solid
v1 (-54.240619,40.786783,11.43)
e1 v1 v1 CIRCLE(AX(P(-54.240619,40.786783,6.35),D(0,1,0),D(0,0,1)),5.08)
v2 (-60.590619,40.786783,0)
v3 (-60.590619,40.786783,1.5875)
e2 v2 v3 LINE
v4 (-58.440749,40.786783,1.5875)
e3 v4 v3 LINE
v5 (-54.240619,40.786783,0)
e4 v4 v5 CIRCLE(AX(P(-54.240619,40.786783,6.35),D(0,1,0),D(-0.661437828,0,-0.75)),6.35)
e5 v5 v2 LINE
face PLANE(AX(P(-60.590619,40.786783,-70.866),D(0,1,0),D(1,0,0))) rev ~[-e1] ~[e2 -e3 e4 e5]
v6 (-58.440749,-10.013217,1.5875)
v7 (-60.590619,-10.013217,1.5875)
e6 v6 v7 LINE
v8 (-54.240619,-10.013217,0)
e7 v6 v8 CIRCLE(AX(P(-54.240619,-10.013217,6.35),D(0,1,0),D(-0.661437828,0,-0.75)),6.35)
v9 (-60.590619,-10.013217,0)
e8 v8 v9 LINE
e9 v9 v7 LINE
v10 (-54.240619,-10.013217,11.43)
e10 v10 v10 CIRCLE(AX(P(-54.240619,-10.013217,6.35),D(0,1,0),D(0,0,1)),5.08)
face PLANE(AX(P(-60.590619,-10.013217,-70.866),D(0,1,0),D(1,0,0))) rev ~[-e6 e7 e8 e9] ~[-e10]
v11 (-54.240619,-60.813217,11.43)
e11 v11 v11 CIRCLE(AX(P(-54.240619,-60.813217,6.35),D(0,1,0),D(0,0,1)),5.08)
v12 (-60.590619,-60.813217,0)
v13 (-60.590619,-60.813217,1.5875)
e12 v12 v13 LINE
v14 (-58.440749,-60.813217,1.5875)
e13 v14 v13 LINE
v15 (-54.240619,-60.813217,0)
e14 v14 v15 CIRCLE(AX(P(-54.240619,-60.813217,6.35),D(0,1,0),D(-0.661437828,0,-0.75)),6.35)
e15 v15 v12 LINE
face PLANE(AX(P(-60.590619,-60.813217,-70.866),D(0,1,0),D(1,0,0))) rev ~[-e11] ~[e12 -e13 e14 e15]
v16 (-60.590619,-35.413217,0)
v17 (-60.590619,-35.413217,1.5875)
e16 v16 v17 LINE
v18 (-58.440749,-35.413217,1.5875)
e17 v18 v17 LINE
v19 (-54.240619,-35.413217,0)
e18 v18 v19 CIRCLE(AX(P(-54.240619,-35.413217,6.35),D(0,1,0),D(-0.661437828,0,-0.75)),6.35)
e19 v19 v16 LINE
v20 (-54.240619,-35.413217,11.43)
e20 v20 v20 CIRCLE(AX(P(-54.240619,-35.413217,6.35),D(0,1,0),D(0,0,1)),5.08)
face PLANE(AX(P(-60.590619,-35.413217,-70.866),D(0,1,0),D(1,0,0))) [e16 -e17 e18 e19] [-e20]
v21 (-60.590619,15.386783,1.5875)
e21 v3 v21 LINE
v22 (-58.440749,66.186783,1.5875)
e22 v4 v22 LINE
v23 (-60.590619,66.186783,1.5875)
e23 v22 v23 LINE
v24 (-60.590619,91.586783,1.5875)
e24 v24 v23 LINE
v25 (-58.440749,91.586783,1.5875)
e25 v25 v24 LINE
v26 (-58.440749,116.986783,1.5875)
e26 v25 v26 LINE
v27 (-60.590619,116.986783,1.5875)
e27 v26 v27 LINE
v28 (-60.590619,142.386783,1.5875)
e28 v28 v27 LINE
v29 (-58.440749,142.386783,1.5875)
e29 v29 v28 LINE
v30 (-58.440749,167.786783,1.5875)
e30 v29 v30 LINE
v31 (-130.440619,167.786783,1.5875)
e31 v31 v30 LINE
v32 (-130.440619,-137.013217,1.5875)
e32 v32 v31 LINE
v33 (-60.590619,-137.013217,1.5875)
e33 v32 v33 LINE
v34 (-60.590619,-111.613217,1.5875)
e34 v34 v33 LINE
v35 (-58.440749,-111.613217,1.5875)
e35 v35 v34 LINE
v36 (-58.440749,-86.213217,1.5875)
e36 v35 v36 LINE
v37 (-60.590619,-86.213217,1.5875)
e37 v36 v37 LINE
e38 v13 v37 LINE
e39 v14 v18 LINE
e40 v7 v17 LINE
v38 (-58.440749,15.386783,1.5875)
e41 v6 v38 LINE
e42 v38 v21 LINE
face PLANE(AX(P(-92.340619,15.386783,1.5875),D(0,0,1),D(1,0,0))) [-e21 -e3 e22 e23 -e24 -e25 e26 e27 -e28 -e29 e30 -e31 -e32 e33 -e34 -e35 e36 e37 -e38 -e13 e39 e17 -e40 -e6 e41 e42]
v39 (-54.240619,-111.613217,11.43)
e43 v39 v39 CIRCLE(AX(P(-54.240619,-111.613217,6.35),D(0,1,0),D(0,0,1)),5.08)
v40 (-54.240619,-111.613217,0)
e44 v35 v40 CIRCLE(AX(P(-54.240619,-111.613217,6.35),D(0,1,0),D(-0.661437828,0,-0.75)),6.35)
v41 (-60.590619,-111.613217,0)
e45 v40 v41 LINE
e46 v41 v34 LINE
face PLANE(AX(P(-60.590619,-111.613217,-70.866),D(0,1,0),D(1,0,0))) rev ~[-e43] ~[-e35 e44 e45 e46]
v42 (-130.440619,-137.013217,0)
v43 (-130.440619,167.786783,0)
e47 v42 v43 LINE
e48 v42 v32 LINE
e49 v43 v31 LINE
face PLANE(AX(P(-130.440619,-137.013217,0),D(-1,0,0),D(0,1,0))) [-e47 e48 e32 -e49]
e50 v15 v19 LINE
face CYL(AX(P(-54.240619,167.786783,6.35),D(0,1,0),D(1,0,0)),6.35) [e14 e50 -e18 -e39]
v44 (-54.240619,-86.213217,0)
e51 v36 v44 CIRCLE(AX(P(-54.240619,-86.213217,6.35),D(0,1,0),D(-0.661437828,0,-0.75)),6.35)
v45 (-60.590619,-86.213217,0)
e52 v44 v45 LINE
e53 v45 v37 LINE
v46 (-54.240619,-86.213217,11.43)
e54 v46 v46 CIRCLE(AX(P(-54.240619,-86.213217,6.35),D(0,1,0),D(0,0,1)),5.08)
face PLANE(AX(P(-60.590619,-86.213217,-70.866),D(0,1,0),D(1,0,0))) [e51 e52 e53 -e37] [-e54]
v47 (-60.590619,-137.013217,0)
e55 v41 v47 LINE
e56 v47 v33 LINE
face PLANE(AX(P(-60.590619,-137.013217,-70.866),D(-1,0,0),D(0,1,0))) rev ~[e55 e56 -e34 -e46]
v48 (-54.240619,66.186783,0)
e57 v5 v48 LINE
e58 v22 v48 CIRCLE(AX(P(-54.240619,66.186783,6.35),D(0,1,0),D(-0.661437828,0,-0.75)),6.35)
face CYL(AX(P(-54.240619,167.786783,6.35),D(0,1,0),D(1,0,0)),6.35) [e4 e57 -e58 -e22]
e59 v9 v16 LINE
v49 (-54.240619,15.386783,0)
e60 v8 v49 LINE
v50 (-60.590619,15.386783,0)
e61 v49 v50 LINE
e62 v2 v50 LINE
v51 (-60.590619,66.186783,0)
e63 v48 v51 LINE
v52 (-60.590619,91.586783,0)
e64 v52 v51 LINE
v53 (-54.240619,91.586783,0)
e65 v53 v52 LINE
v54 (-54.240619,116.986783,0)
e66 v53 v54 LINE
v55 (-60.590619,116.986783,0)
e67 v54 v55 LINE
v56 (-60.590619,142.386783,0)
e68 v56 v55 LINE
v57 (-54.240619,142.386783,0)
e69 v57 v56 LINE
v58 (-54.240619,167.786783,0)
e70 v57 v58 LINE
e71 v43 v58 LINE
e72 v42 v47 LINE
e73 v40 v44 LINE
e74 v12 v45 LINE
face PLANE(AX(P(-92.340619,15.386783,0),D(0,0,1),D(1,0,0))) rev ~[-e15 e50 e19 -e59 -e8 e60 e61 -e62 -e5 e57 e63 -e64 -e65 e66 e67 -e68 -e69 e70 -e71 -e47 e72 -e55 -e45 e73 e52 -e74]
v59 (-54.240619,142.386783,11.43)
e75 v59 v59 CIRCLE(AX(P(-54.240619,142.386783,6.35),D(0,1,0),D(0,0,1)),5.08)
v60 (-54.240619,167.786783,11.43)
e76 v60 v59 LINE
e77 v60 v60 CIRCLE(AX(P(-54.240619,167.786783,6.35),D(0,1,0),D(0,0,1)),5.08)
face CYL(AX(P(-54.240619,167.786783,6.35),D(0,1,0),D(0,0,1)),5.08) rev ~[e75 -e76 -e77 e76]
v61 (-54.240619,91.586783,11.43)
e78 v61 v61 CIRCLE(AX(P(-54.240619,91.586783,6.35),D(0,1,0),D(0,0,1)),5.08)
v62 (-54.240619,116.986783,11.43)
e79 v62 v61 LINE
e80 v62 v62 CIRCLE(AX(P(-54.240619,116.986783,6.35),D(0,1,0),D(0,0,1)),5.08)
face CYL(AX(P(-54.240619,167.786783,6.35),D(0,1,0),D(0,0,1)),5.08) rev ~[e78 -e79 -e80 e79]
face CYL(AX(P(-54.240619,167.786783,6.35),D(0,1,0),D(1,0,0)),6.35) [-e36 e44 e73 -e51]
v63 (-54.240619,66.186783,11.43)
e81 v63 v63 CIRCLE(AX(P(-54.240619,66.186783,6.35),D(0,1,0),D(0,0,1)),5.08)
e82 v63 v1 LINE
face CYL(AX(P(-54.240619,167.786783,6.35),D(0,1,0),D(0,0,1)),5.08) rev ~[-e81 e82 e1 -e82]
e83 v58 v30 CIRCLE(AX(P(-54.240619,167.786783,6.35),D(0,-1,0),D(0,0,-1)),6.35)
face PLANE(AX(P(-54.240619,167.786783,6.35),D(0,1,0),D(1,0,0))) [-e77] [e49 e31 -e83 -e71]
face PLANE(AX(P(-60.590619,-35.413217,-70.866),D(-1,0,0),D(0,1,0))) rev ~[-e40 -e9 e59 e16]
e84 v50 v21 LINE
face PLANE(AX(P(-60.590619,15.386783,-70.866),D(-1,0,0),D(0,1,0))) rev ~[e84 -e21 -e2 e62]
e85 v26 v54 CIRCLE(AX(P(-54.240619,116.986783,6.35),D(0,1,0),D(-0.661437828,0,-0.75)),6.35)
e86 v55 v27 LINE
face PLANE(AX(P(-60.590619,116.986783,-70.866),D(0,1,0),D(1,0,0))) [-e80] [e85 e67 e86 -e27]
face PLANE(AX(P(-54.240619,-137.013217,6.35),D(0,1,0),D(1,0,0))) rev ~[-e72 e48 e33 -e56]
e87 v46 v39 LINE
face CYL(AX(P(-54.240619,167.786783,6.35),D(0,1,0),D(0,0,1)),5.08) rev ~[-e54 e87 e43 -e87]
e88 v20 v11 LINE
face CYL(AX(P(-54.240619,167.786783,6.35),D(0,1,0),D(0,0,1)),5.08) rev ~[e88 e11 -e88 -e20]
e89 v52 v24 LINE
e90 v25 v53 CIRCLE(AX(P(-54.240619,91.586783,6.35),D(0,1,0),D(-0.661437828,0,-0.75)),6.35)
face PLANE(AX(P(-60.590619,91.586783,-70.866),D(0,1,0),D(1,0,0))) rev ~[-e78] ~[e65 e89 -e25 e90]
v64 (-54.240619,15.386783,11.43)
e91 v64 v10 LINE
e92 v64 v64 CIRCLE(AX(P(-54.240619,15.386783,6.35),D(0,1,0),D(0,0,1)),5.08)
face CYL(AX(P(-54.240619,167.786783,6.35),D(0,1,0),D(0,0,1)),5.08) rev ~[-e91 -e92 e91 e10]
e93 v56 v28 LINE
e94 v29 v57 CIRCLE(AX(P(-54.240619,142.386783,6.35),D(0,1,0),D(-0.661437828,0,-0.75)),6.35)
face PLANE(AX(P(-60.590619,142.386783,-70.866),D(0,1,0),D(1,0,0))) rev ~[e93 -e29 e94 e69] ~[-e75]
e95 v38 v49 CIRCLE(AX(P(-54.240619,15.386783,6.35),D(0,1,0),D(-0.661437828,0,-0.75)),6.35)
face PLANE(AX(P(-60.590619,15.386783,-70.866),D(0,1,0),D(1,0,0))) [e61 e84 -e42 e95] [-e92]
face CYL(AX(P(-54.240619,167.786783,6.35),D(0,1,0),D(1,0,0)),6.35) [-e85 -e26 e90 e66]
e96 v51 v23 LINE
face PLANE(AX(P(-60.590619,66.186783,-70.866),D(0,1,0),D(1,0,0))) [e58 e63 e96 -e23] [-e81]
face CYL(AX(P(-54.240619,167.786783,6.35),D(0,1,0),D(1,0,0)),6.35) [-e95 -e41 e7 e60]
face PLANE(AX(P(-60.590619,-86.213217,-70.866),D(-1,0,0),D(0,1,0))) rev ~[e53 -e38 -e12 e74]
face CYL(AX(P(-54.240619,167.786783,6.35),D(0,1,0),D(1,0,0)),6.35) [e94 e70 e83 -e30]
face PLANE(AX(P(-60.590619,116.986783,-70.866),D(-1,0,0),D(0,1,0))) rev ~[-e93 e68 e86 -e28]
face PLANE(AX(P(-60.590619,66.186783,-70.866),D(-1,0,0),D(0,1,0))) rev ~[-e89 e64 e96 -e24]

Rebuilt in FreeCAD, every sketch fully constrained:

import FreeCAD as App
import Part
import Sketcher

V = App.Vector
Q = App.Units.Quantity


def add_polygon(sketch, points):
    """Adds a closed chain of lines whose ends are joined by coincident constraints."""
    first, n = sketch.GeometryCount, len(points)
    for a, b in zip(points, points[1:] + points[:1]):
        sketch.addGeometry(Part.LineSegment(App.Vector(*a, 0), App.Vector(*b, 0)), False)
    for i in range(n):
        sketch.addConstraint(Sketcher.Constraint("Coincident", first + i, 2, first + (i + 1) % n, 1))

doc = App.newDocument("Part")
body = doc.addObject("PartDesign::Body", "Body")

# Sketch on XY plane
sketch1 = doc.addObject("Sketcher::SketchObject", "Sketch")
body.addObject(sketch1)
sketch1.AttachmentSupport = (doc.XY_Plane, [""])
sketch1.MapMode = "FlatFace"
add_polygon(sketch1, [(-130, 168), (-130, -137), (-54, -137), (-54, 168)])  # lines 0-3
sketch1.addConstraint([
    Sketcher.Constraint("Vertical", 0),
    Sketcher.Constraint("Horizontal", 1),
    Sketcher.Constraint("Vertical", 2),
    Sketcher.Constraint("Horizontal", 3),
    Sketcher.Constraint("DistanceX", 1, 1, 1, 2, Q("3 in")),
    Sketcher.Constraint("DistanceY", 0, 2, 0, 1, Q("12 in")),
    Sketcher.Constraint("DistanceX", 0, 2, -1, 1, 130.440619),
    Sketcher.Constraint("DistanceY", 0, 2, -1, 1, 137.013217),
])
pad1 = doc.addObject("PartDesign::Pad", "Pad")
body.addObject(pad1)
pad1.Profile = sketch1
pad1.Length = Q("0.0625 in")

# Sketch on XZ plane
sketch2 = doc.addObject("Sketcher::SketchObject", "Sketch001")
body.addObject(sketch2)
sketch2.AttachmentSupport = (doc.XZ_Plane, [""])
sketch2.MapMode = "FlatFace"
sketch2.AttachmentOffset = App.Placement(V(0, 0, -167.786783), App.Rotation())
sketch2.addGeometry(Part.Circle(V(-54, 6, 0), V(0, 0, 1), 6), False)
sketch2.addConstraint([
    Sketcher.Constraint("Diameter", 0, Q("0.5 in")),
    Sketcher.Constraint("DistanceY", -1, 1, 0, 3, Q("0.25 in")),
    Sketcher.Constraint("DistanceX", 0, 3, -1, 1, 54.240619),
])
pad2 = doc.addObject("PartDesign::Pad", "Pad001")
body.addObject(pad2)
pad2.Profile = sketch2
pad2.Length = Q("12 in")

# Sketch on XY plane
sketch3 = doc.addObject("Sketcher::SketchObject", "Sketch002")
body.addObject(sketch3)
sketch3.AttachmentSupport = (doc.XY_Plane, [""])
sketch3.MapMode = "FlatFace"
sketch3.AttachmentOffset = App.Placement(V(0, 0, 0.0625 * 25.4), App.Rotation())
add_polygon(sketch3, [(-61, 142), (-61, 117), (-38, 117), (-38, 142)])  # lines 0-3
add_polygon(sketch3, [(-61, 92), (-61, 66), (-38, 66), (-38, 92)])  # lines 4-7
add_polygon(sketch3, [(-61, 41), (-61, 15), (-38, 15), (-38, 41)])  # lines 8-11
add_polygon(sketch3, [(-61, -10), (-61, -35), (-38, -35), (-38, -10)])  # lines 12-15
add_polygon(sketch3, [(-61, -61), (-61, -86), (-35, -86), (-35, -61)])  # lines 16-19
add_polygon(sketch3, [(-61, -112), (-61, -137), (-40, -137), (-40, -112)])  # lines 20-23
sketch3.addConstraint([
    Sketcher.Constraint("Vertical", 0),
    Sketcher.Constraint("Horizontal", 1),
    Sketcher.Constraint("Vertical", 2),
    Sketcher.Constraint("Horizontal", 3),
    Sketcher.Constraint("Vertical", 4),
    Sketcher.Constraint("Horizontal", 5),
    Sketcher.Constraint("Vertical", 6),
    Sketcher.Constraint("Horizontal", 7),
    Sketcher.Constraint("Vertical", 8),
    Sketcher.Constraint("Horizontal", 9),
    Sketcher.Constraint("Vertical", 10),
    Sketcher.Constraint("Horizontal", 11),
    Sketcher.Constraint("Vertical", 12),
    Sketcher.Constraint("Horizontal", 13),
    Sketcher.Constraint("Vertical", 14),
    Sketcher.Constraint("Horizontal", 15),
    Sketcher.Constraint("Vertical", 16),
    Sketcher.Constraint("Horizontal", 17),
    Sketcher.Constraint("Vertical", 18),
    Sketcher.Constraint("Horizontal", 19),
    Sketcher.Constraint("Vertical", 20),
    Sketcher.Constraint("Horizontal", 21),
    Sketcher.Constraint("Vertical", 22),
    Sketcher.Constraint("Horizontal", 23),
    Sketcher.Constraint("Vertical", 3, 2, 4, 2),
    Sketcher.Constraint("Vertical", 2, 2, 5, 2),
    Sketcher.Constraint("Vertical", 7, 2, 8, 2),
    Sketcher.Constraint("Vertical", 6, 2, 9, 2),
    Sketcher.Constraint("Vertical", 11, 2, 12, 2),
    Sketcher.Constraint("Vertical", 10, 2, 13, 2),
    Sketcher.Constraint("Vertical", 15, 2, 16, 2),
    Sketcher.Constraint("Vertical", 19, 2, 20, 2),
    Sketcher.Constraint("Equal", 2, 4),
    Sketcher.Constraint("Equal", 6, 8),
    Sketcher.Constraint("Equal", 10, 12),
    Sketcher.Constraint("Equal", 14, 16),
    Sketcher.Constraint("Equal", 18, 20),
    Sketcher.Constraint("DistanceY", 0, 2, 0, 1, Q("1 in")),
    Sketcher.Constraint("DistanceY", 4, 2, 0, 2, Q("2 in")),
    Sketcher.Constraint("DistanceY", 8, 2, 4, 2, Q("2 in")),
    Sketcher.Constraint("DistanceY", 12, 2, 8, 2, Q("2 in")),
    Sketcher.Constraint("DistanceY", 16, 2, 12, 2, Q("2 in")),
    Sketcher.Constraint("DistanceY", 20, 2, 16, 2, Q("2 in")),
    Sketcher.Constraint("DistanceX", 1, 1, 1, 2, 22.233492),
    Sketcher.Constraint("DistanceX", 17, 1, 17, 2, 25.16999),
    Sketcher.Constraint("DistanceX", 21, 1, 21, 2, 20.176909),
    Sketcher.Constraint("DistanceX", 0, 2, -1, 1, 60.590619),
    Sketcher.Constraint("DistanceY", -1, 1, 0, 2, 116.986783),
])
pocket1 = doc.addObject("PartDesign::Pocket", "Pocket")
body.addObject(pocket1)
pocket1.Profile = sketch3
pocket1.Type = "ThroughAll"
pocket1.Midplane = True

# Sketch on XZ plane
sketch4 = doc.addObject("Sketcher::SketchObject", "Sketch003")
body.addObject(sketch4)
sketch4.AttachmentSupport = (doc.XZ_Plane, [""])
sketch4.MapMode = "FlatFace"
sketch4.AttachmentOffset = App.Placement(V(0, 0, -167.786783), App.Rotation())
sketch4.addGeometry(Part.Circle(V(-54, 6, 0), V(0, 0, 1), 5), False)
sketch4.addConstraint([
    Sketcher.Constraint("Diameter", 0, Q("0.4 in")),
    Sketcher.Constraint("DistanceY", -1, 1, 0, 3, Q("0.25 in")),
    Sketcher.Constraint("DistanceX", 0, 3, -1, 1, 54.240619),
])
pocket2 = doc.addObject("PartDesign::Pocket", "Pocket001")
body.addObject(pocket2)
pocket2.Profile = sketch4
pocket2.Type = "ThroughAll"
pocket2.Reversed = True

doc.recompute()
